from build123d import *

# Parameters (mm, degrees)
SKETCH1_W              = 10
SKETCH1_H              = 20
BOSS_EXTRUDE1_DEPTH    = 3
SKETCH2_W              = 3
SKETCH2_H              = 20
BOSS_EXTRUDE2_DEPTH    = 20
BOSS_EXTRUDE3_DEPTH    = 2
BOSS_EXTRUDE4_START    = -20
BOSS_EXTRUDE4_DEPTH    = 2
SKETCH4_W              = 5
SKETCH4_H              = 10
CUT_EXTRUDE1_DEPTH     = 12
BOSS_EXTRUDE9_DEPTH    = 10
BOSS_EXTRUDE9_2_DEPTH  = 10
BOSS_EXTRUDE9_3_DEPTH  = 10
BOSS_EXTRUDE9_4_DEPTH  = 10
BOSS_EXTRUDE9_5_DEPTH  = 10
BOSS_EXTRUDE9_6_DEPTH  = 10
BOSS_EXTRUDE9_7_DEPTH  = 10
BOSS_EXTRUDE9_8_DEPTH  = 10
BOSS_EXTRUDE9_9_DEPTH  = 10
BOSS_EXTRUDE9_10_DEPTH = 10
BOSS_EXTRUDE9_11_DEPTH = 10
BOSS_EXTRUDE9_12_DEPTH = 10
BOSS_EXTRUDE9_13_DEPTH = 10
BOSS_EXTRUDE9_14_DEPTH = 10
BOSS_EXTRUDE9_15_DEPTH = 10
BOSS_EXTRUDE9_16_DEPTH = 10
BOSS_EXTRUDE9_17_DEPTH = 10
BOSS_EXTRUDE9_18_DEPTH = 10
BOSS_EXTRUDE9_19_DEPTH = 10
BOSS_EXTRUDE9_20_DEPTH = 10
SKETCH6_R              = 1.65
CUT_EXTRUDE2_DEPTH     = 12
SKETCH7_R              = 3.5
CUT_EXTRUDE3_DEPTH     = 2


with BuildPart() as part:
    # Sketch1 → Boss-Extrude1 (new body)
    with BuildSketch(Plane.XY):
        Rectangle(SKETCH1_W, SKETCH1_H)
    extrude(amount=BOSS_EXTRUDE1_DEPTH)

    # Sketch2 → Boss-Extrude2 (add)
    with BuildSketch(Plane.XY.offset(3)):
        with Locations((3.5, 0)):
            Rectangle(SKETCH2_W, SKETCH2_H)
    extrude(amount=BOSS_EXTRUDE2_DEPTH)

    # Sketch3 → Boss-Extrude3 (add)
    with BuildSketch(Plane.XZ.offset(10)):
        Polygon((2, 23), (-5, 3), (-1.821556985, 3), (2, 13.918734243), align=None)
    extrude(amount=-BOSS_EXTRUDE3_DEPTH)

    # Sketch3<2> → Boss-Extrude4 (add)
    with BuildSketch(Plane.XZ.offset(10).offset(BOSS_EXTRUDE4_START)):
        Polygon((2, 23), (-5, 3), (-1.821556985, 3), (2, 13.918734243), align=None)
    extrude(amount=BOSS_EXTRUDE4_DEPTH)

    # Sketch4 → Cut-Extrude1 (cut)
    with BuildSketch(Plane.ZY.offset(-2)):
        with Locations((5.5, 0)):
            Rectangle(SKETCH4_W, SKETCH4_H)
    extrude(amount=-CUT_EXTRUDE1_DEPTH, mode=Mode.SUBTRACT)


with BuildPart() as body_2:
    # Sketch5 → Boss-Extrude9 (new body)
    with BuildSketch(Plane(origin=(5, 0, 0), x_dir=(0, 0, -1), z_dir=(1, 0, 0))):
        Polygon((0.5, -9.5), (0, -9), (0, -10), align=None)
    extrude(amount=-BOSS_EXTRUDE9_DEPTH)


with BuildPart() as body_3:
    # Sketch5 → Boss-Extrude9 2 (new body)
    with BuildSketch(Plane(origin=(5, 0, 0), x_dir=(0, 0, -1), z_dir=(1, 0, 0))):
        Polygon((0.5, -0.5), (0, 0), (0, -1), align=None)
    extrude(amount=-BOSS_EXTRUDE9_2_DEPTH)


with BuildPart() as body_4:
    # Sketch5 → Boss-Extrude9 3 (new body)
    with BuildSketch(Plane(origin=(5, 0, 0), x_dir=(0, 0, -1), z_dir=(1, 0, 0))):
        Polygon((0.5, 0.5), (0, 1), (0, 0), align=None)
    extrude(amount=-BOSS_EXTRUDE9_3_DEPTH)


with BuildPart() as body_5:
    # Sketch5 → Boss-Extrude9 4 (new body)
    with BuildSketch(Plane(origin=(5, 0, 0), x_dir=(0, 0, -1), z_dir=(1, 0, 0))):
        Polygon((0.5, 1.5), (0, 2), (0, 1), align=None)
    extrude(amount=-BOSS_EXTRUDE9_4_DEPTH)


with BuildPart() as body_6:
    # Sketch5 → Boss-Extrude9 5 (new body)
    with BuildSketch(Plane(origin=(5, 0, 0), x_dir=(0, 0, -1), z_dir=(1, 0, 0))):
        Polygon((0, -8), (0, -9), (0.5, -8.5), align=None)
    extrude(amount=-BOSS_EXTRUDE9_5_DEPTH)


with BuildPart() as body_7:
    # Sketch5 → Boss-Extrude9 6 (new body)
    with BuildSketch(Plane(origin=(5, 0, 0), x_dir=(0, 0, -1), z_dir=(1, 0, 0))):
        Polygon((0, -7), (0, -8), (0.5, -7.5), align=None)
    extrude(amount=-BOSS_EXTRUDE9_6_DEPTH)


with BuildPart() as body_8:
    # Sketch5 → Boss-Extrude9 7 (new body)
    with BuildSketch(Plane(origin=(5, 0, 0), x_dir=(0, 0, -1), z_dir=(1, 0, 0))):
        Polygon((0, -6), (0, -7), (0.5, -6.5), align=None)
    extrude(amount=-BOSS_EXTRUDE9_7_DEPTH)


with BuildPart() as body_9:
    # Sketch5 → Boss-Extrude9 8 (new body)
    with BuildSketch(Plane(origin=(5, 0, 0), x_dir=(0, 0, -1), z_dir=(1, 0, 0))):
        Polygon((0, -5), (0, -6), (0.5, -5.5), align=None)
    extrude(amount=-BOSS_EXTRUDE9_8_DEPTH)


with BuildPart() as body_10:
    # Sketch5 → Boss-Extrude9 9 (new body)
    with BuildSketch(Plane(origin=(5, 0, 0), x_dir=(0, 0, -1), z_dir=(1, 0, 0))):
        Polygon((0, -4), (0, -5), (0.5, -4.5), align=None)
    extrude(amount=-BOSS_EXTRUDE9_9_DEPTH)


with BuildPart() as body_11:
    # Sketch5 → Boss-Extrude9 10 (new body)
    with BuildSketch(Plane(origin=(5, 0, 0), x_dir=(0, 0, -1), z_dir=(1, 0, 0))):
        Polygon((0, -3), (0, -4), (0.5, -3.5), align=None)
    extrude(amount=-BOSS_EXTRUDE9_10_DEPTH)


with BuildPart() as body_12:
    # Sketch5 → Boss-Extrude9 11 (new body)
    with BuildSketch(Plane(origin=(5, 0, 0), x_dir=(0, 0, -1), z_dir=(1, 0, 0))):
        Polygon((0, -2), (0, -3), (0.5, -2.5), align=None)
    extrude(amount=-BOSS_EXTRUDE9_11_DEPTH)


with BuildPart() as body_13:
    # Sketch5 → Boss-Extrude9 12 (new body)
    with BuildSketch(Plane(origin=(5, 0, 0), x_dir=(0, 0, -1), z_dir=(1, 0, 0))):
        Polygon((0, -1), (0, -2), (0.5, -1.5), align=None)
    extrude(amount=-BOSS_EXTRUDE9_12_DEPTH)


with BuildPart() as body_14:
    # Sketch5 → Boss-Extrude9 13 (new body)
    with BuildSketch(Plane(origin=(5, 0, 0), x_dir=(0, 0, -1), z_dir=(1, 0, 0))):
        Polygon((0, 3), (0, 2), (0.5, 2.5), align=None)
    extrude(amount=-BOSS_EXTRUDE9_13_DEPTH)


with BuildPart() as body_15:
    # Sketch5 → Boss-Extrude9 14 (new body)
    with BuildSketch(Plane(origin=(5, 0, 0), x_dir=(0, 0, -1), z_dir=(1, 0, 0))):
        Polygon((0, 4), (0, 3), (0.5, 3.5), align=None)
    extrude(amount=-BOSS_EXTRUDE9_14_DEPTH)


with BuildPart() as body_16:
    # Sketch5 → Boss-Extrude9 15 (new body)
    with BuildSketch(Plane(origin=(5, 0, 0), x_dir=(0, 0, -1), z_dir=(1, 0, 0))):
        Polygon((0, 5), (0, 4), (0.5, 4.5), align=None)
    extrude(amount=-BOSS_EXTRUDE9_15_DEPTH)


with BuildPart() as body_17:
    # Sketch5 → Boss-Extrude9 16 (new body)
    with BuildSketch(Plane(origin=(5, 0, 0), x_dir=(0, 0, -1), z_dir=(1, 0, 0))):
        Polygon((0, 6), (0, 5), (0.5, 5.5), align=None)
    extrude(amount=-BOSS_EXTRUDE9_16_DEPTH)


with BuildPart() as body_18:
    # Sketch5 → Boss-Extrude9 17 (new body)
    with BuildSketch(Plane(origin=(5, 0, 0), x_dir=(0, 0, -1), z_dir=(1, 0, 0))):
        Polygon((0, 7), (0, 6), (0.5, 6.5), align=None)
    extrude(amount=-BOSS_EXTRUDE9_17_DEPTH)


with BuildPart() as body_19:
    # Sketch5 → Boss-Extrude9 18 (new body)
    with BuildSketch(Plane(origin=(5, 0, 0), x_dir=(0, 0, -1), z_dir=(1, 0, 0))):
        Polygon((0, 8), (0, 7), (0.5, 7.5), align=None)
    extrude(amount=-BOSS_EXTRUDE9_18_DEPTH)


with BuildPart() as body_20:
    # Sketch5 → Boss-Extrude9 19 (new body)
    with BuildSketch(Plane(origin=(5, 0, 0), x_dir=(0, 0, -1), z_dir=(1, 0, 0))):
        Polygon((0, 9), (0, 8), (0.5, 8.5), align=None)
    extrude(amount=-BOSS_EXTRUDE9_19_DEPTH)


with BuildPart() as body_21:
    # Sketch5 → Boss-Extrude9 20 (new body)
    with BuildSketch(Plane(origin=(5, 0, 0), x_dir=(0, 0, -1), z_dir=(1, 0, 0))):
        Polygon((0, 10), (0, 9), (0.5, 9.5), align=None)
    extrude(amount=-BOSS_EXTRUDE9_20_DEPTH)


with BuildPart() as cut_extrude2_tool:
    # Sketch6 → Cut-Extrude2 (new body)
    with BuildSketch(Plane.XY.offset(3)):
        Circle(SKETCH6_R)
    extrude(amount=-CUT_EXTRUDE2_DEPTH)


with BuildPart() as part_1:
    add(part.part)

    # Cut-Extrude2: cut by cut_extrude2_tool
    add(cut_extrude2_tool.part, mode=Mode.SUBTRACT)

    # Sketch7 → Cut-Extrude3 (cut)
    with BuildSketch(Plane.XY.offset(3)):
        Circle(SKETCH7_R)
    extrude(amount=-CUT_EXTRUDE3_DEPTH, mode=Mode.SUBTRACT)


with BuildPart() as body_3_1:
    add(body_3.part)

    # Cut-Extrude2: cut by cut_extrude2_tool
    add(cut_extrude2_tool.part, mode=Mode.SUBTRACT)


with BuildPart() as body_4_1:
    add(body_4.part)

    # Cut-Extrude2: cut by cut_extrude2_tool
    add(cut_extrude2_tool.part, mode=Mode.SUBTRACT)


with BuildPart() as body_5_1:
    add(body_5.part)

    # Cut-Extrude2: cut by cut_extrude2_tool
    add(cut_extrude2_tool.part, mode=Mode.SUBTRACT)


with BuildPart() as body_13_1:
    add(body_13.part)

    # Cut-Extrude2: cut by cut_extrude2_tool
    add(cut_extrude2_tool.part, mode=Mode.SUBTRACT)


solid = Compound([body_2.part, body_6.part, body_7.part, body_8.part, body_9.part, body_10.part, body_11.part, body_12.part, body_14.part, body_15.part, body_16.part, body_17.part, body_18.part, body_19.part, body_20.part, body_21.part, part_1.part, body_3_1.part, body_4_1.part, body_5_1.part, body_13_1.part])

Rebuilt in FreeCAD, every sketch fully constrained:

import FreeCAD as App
import Part
import Sketcher

V = App.Vector

doc = App.newDocument("Part")
body = doc.addObject("PartDesign::Body", "Body")

sketch1 = doc.addObject("Sketcher::SketchObject", "Sketch")
body.addObject(sketch1)
sketch1.AttachmentSupport = (doc.XY_Plane, [""])
sketch1.MapMode = "FlatFace"
sketch1.addGeometry(Part.LineSegment(V(-5, 10, 0), V(-5, -10, 0)), False)
sketch1.addGeometry(Part.LineSegment(V(-5, -10, 0), V(5, -10, 0)), False)
sketch1.addGeometry(Part.LineSegment(V(5, -10, 0), V(5, 10, 0)), False)
sketch1.addGeometry(Part.LineSegment(V(5, 10, 0), V(-5, 10, 0)), False)
sketch1.addConstraint(Sketcher.Constraint("Coincident", 0, 2, 1, 1))
sketch1.addConstraint(Sketcher.Constraint("Coincident", 1, 2, 2, 1))
sketch1.addConstraint(Sketcher.Constraint("Coincident", 2, 2, 3, 1))
sketch1.addConstraint(Sketcher.Constraint("Coincident", 3, 2, 0, 1))
sketch1.addConstraint(Sketcher.Constraint("Vertical", 0))
sketch1.addConstraint(Sketcher.Constraint("Horizontal", 1))
sketch1.addConstraint(Sketcher.Constraint("Vertical", 2))
sketch1.addConstraint(Sketcher.Constraint("Horizontal", 3))
sketch1.addConstraint(Sketcher.Constraint("Symmetric", 0, 2, 2, 2, -1, 1))
sketch1.addConstraint(Sketcher.Constraint("DistanceX", 1, 1, 1, 2, 10.0))
sketch1.addConstraint(Sketcher.Constraint("DistanceY", 0, 2, 0, 1, 20.0))
pad1 = doc.addObject("PartDesign::Pad", "Pad")
body.addObject(pad1)
pad1.Profile = sketch1
pad1.Length = 3

sketch2 = doc.addObject("Sketcher::SketchObject", "Sketch001")
body.addObject(sketch2)
sketch2.AttachmentSupport = (doc.XY_Plane, [""])
sketch2.MapMode = "FlatFace"
sketch2.AttachmentOffset = App.Placement(V(0, 0, 3), App.Rotation())
sketch2.addGeometry(Part.LineSegment(V(2, 10, 0), V(2, -10, 0)), False)
sketch2.addGeometry(Part.LineSegment(V(2, -10, 0), V(5, -10, 0)), False)
sketch2.addGeometry(Part.LineSegment(V(5, -10, 0), V(5, 10, 0)), False)
sketch2.addGeometry(Part.LineSegment(V(5, 10, 0), V(2, 10, 0)), False)
sketch2.addConstraint(Sketcher.Constraint("Coincident", 0, 2, 1, 1))
sketch2.addConstraint(Sketcher.Constraint("Coincident", 1, 2, 2, 1))
sketch2.addConstraint(Sketcher.Constraint("Coincident", 2, 2, 3, 1))
sketch2.addConstraint(Sketcher.Constraint("Coincident", 3, 2, 0, 1))
sketch2.addConstraint(Sketcher.Constraint("Vertical", 0))
sketch2.addConstraint(Sketcher.Constraint("Horizontal", 1))
sketch2.addConstraint(Sketcher.Constraint("Vertical", 2))
sketch2.addConstraint(Sketcher.Constraint("Horizontal", 3))
sketch2.addConstraint(Sketcher.Constraint("DistanceX", 1, 1, 1, 2, 3.0))
sketch2.addConstraint(Sketcher.Constraint("DistanceY", 0, 2, 0, 1, 20.0))
sketch2.addConstraint(Sketcher.Constraint("DistanceX", -1, 1, 0, 2, 2.0))
sketch2.addConstraint(Sketcher.Constraint("DistanceY", 0, 2, -1, 1, 10.0))
pad2 = doc.addObject("PartDesign::Pad", "Pad001")
body.addObject(pad2)
pad2.Profile = sketch2
pad2.Length = 20

sketch3 = doc.addObject("Sketcher::SketchObject", "Sketch002")
body.addObject(sketch3)
sketch3.AttachmentSupport = (doc.XZ_Plane, [""])
sketch3.MapMode = "FlatFace"
sketch3.AttachmentOffset = App.Placement(V(0, 0, 10), App.Rotation())
sketch3.addGeometry(Part.LineSegment(V(2, 23, 0), V(-5, 3, 0)), False)
sketch3.addGeometry(Part.LineSegment(V(-5, 3, 0), V(-1.8, 3, 0)), False)
sketch3.addGeometry(Part.LineSegment(V(-1.8, 3, 0), V(2, 13.9, 0)), False)
sketch3.addGeometry(Part.LineSegment(V(2, 13.9, 0), V(2, 23, 0)), False)
sketch3.addConstraint(Sketcher.Constraint("Coincident", 0, 2, 1, 1))
sketch3.addConstraint(Sketcher.Constraint("Coincident", 1, 2, 2, 1))
sketch3.addConstraint(Sketcher.Constraint("Coincident", 2, 2, 3, 1))
sketch3.addConstraint(Sketcher.Constraint("Coincident", 3, 2, 0, 1))
sketch3.addConstraint(Sketcher.Constraint("Horizontal", 1))
sketch3.addConstraint(Sketcher.Constraint("Vertical", 3))
sketch3.addConstraint(Sketcher.Constraint("Parallel", 0, 2))
sketch3.addConstraint(Sketcher.Constraint("DistanceX", 0, 2, -1, 1, 5.0))
sketch3.addConstraint(Sketcher.Constraint("DistanceY", -1, 1, 0, 2, 3.0))
sketch3.addConstraint(Sketcher.Constraint("DistanceX", -1, 1, 2, 2, 2.0))
sketch3.addConstraint(Sketcher.Constraint("DistanceY", -1, 1, 3, 2, 23.0))
sketch3.addConstraint(Sketcher.Constraint("Distance", 2, 11.568192))
pad3 = doc.addObject("PartDesign::Pad", "Pad002")
body.addObject(pad3)
pad3.Profile = sketch3
pad3.Length = 2
pad3.Reversed = True

sketch4 = doc.addObject("Sketcher::SketchObject", "Sketch003")
body.addObject(sketch4)
sketch4.AttachmentSupport = (doc.XZ_Plane, [""])
sketch4.MapMode = "FlatFace"
sketch4.AttachmentOffset = App.Placement(V(0, 0, -10), App.Rotation())
sketch4.addGeometry(Part.LineSegment(V(2, 23, 0), V(-5, 3, 0)), False)
sketch4.addGeometry(Part.LineSegment(V(-5, 3, 0), V(-1.8, 3, 0)), False)
sketch4.addGeometry(Part.LineSegment(V(-1.8, 3, 0), V(2, 13.9, 0)), False)
sketch4.addGeometry(Part.LineSegment(V(2, 13.9, 0), V(2, 23, 0)), False)
sketch4.addConstraint(Sketcher.Constraint("Coincident", 0, 2, 1, 1))
sketch4.addConstraint(Sketcher.Constraint("Coincident", 1, 2, 2, 1))
sketch4.addConstraint(Sketcher.Constraint("Coincident", 2, 2, 3, 1))
sketch4.addConstraint(Sketcher.Constraint("Coincident", 3, 2, 0, 1))
sketch4.addConstraint(Sketcher.Constraint("Horizontal", 1))
sketch4.addConstraint(Sketcher.Constraint("Vertical", 3))
sketch4.addConstraint(Sketcher.Constraint("Parallel", 0, 2))
sketch4.addConstraint(Sketcher.Constraint("DistanceX", 0, 2, -1, 1, 5.0))
sketch4.addConstraint(Sketcher.Constraint("DistanceY", -1, 1, 0, 2, 3.0))
sketch4.addConstraint(Sketcher.Constraint("DistanceX", -1, 1, 2, 2, 2.0))
sketch4.addConstraint(Sketcher.Constraint("DistanceY", -1, 1, 3, 2, 23.0))
sketch4.addConstraint(Sketcher.Constraint("Distance", 2, 11.568192))
pad4 = doc.addObject("PartDesign::Pad", "Pad003")
body.addObject(pad4)
pad4.Profile = sketch4
pad4.Length = 2

sketch5 = doc.addObject("Sketcher::SketchObject", "Sketch004")
body.addObject(sketch5)
sketch5.AttachmentSupport = (doc.YZ_Plane, [""])
sketch5.MapMode = "FlatFace"
sketch5.AttachmentOffset = App.Placement(V(0, 0, 2), App.Rotation())
sketch5.addGeometry(Part.LineSegment(V(5, 3, 0), V(-5, 3, 0)), False)
sketch5.addGeometry(Part.LineSegment(V(-5, 3, 0), V(-5, 8, 0)), False)
sketch5.addGeometry(Part.LineSegment(V(-5, 8, 0), V(5, 8, 0)), False)
sketch5.addGeometry(Part.LineSegment(V(5, 8, 0), V(5, 3, 0)), False)
sketch5.addConstraint(Sketcher.Constraint("Coincident", 0, 2, 1, 1))
sketch5.addConstraint(Sketcher.Constraint("Coincident", 1, 2, 2, 1))
sketch5.addConstraint(Sketcher.Constraint("Coincident", 2, 2, 3, 1))
sketch5.addConstraint(Sketcher.Constraint("Coincident", 3, 2, 0, 1))
sketch5.addConstraint(Sketcher.Constraint("Horizontal", 0))
sketch5.addConstraint(Sketcher.Constraint("Vertical", 1))
sketch5.addConstraint(Sketcher.Constraint("Horizontal", 2))
sketch5.addConstraint(Sketcher.Constraint("Vertical", 3))
sketch5.addConstraint(Sketcher.Constraint("DistanceX", 0, 2, 0, 1, 10.0))
sketch5.addConstraint(Sketcher.Constraint("DistanceY", 1, 1, 1, 2, 5.0))
sketch5.addConstraint(Sketcher.Constraint("DistanceX", 0, 2, -1, 1, 5.0))
sketch5.addConstraint(Sketcher.Constraint("DistanceY", -1, 1, 0, 2, 3.0))
pocket1 = doc.addObject("PartDesign::Pocket", "Pocket")
body.addObject(pocket1)
pocket1.Profile = sketch5
pocket1.Length = 12
pocket1.Reversed = True
body2 = doc.addObject("PartDesign::Body", "Body001")

sketch6 = doc.addObject("Sketcher::SketchObject", "Sketch005")
body2.addObject(sketch6)
sketch6.AttachmentSupport = (doc.getObject("YZ_Plane001"), [""])
sketch6.MapMode = "FlatFace"
sketch6.AttachmentOffset = App.Placement(V(0, 0, 5), App.Rotation())
sketch6.addGeometry(Part.LineSegment(V(-9.5, -0.5, 0), V(-9, 0, 0)), False)
sketch6.addGeometry(Part.LineSegment(V(-9, 0, 0), V(-10, 0, 0)), False)
sketch6.addGeometry(Part.LineSegment(V(-10, 0, 0), V(-9.5, -0.5, 0)), False)
sketch6.addConstraint(Sketcher.Constraint("Coincident", 0, 2, 1, 1))
sketch6.addConstraint(Sketcher.Constraint("Coincident", 1, 2, 2, 1))
sketch6.addConstraint(Sketcher.Constraint("Coincident", 2, 2, 0, 1))
sketch6.addConstraint(Sketcher.Constraint("Horizontal", 1))
sketch6.addConstraint(Sketcher.Constraint("PointOnObject", 0, 2, -1))
sketch6.addConstraint(Sketcher.Constraint("Perpendicular", 0, 2))
sketch6.addConstraint(Sketcher.Constraint("Equal", 0, 2))
sketch6.addConstraint(Sketcher.Constraint("DistanceX", 1, 2, 1, 1, 1.0))
sketch6.addConstraint(Sketcher.Constraint("DistanceX", 0, 2, -1, 1, 9.0))
pad5 = doc.addObject("PartDesign::Pad", "Pad004")
body2.addObject(pad5)
pad5.Profile = sketch6
pad5.Length = 10
pad5.Reversed = True
body3 = doc.addObject("PartDesign::Body", "Body002")

sketch7 = doc.addObject("Sketcher::SketchObject", "Sketch006")
body3.addObject(sketch7)
sketch7.AttachmentSupport = (doc.getObject("YZ_Plane002"), [""])
sketch7.MapMode = "FlatFace"
sketch7.AttachmentOffset = App.Placement(V(0, 0, 5), App.Rotation())
sketch7.addGeometry(Part.LineSegment(V(-0.5, -0.5, 0), V(0, 0, 0)), False)
sketch7.addGeometry(Part.LineSegment(V(0, 0, 0), V(-1, 0, 0)), False)
sketch7.addGeometry(Part.LineSegment(V(-1, 0, 0), V(-0.5, -0.5, 0)), False)
sketch7.addConstraint(Sketcher.Constraint("Coincident", 0, 2, 1, 1))
sketch7.addConstraint(Sketcher.Constraint("Coincident", 1, 2, 2, 1))
sketch7.addConstraint(Sketcher.Constraint("Coincident", 2, 2, 0, 1))
sketch7.addConstraint(Sketcher.Constraint("Horizontal", 1))
sketch7.addConstraint(Sketcher.Constraint("Coincident", 0, 2, -1, 1))
sketch7.addConstraint(Sketcher.Constraint("Perpendicular", 0, 2))
sketch7.addConstraint(Sketcher.Constraint("Equal", 0, 2))
sketch7.addConstraint(Sketcher.Constraint("DistanceX", 1, 2, 1, 1, 1.0))
pad6 = doc.addObject("PartDesign::Pad", "Pad005")
body3.addObject(pad6)
pad6.Profile = sketch7
pad6.Length = 10
pad6.Reversed = True
body4 = doc.addObject("PartDesign::Body", "Body003")

sketch8 = doc.addObject("Sketcher::SketchObject", "Sketch007")
body4.addObject(sketch8)
sketch8.AttachmentSupport = (doc.getObject("YZ_Plane003"), [""])
sketch8.MapMode = "FlatFace"
sketch8.AttachmentOffset = App.Placement(V(0, 0, 5), App.Rotation())
sketch8.addGeometry(Part.LineSegment(V(0.5, -0.5, 0), V(1, 0, 0)), False)
sketch8.addGeometry(Part.LineSegment(V(1, 0, 0), V(0, 0, 0)), False)
sketch8.addGeometry(Part.LineSegment(V(0, 0, 0), V(0.5, -0.5, 0)), False)
sketch8.addConstraint(Sketcher.Constraint("Coincident", 0, 2, 1, 1))
sketch8.addConstraint(Sketcher.Constraint("Coincident", 1, 2, 2, 1))
sketch8.addConstraint(Sketcher.Constraint("Coincident", 2, 2, 0, 1))
sketch8.addConstraint(Sketcher.Constraint("Horizontal", 1))
sketch8.addConstraint(Sketcher.Constraint("Coincident", 1, 2, -1, 1))
sketch8.addConstraint(Sketcher.Constraint("Perpendicular", 0, 2))
sketch8.addConstraint(Sketcher.Constraint("Equal", 0, 2))
sketch8.addConstraint(Sketcher.Constraint("DistanceX", 1, 2, 1, 1, 1.0))
pad7 = doc.addObject("PartDesign::Pad", "Pad006")
body4.addObject(pad7)
pad7.Profile = sketch8
pad7.Length = 10
pad7.Reversed = True
body5 = doc.addObject("PartDesign::Body", "Body004")

sketch9 = doc.addObject("Sketcher::SketchObject", "Sketch008")
body5.addObject(sketch9)
sketch9.AttachmentSupport = (doc.getObject("YZ_Plane004"), [""])
sketch9.MapMode = "FlatFace"
sketch9.AttachmentOffset = App.Placement(V(0, 0, 5), App.Rotation())
sketch9.addGeometry(Part.LineSegment(V(1.5, -0.5, 0), V(2, 0, 0)), False)
sketch9.addGeometry(Part.LineSegment(V(2, 0, 0), V(1, 0, 0)), False)
sketch9.addGeometry(Part.LineSegment(V(1, 0, 0), V(1.5, -0.5, 0)), False)
sketch9.addConstraint(Sketcher.Constraint("Coincident", 0, 2, 1, 1))
sketch9.addConstraint(Sketcher.Constraint("Coincident", 1, 2, 2, 1))
sketch9.addConstraint(Sketcher.Constraint("Coincident", 2, 2, 0, 1))
sketch9.addConstraint(Sketcher.Constraint("Horizontal", 1))
sketch9.addConstraint(Sketcher.Constraint("PointOnObject", 0, 2, -1))
sketch9.addConstraint(Sketcher.Constraint("Perpendicular", 0, 2))
sketch9.addConstraint(Sketcher.Constraint("Equal", 0, 2))
sketch9.addConstraint(Sketcher.Constraint("DistanceX", 1, 2, 1, 1, 1.0))
sketch9.addConstraint(Sketcher.Constraint("DistanceX", -1, 1, 0, 2, 2.0))
pad8 = doc.addObject("PartDesign::Pad", "Pad007")
body5.addObject(pad8)
pad8.Profile = sketch9
pad8.Length = 10
pad8.Reversed = True
body6 = doc.addObject("PartDesign::Body", "Body005")

sketch10 = doc.addObject("Sketcher::SketchObject", "Sketch009")
body6.addObject(sketch10)
sketch10.AttachmentSupport = (doc.getObject("YZ_Plane005"), [""])
sketch10.MapMode = "FlatFace"
sketch10.AttachmentOffset = App.Placement(V(0, 0, 5), App.Rotation())
sketch10.addGeometry(Part.LineSegment(V(-8, 0, 0), V(-9, 0, 0)), False)
sketch10.addGeometry(Part.LineSegment(V(-9, 0, 0), V(-8.5, -0.5, 0)), False)
sketch10.addGeometry(Part.LineSegment(V(-8.5, -0.5, 0), V(-8, 0, 0)), False)
sketch10.addConstraint(Sketcher.Constraint("Coincident", 0, 2, 1, 1))
sketch10.addConstraint(Sketcher.Constraint("Coincident", 1, 2, 2, 1))
sketch10.addConstraint(Sketcher.Constraint("Coincident", 2, 2, 0, 1))
sketch10.addConstraint(Sketcher.Constraint("Horizontal", 0))
sketch10.addConstraint(Sketcher.Constraint("PointOnObject", 0, 2, -1))
sketch10.addConstraint(Sketcher.Constraint("Perpendicular", 1, 2))
sketch10.addConstraint(Sketcher.Constraint("Equal", 1, 2))
sketch10.addConstraint(Sketcher.Constraint("DistanceX", 0, 2, 0, 1, 1.0))
sketch10.addConstraint(Sketcher.Constraint("DistanceX", 0, 2, -1, 1, 9.0))
pad9 = doc.addObject("PartDesign::Pad", "Pad008")
body6.addObject(pad9)
pad9.Profile = sketch10
pad9.Length = 10
pad9.Reversed = True
body7 = doc.addObject("PartDesign::Body", "Body006")

sketch11 = doc.addObject("Sketcher::SketchObject", "Sketch010")
body7.addObject(sketch11)
sketch11.AttachmentSupport = (doc.getObject("YZ_Plane006"), [""])
sketch11.MapMode = "FlatFace"
sketch11.AttachmentOffset = App.Placement(V(0, 0, 5), App.Rotation())
sketch11.addGeometry(Part.LineSegment(V(-7, 0, 0), V(-8, 0, 0)), False)
sketch11.addGeometry(Part.LineSegment(V(-8, 0, 0), V(-7.5, -0.5, 0)), False)
sketch11.addGeometry(Part.LineSegment(V(-7.5, -0.5, 0), V(-7, 0, 0)), False)
sketch11.addConstraint(Sketcher.Constraint("Coincident", 0, 2, 1, 1))
sketch11.addConstraint(Sketcher.Constraint("Coincident", 1, 2, 2, 1))
sketch11.addConstraint(Sketcher.Constraint("Coincident", 2, 2, 0, 1))
sketch11.addConstraint(Sketcher.Constraint("Horizontal", 0))
sketch11.addConstraint(Sketcher.Constraint("PointOnObject", 0, 2, -1))
sketch11.addConstraint(Sketcher.Constraint("Perpendicular", 1, 2))
sketch11.addConstraint(Sketcher.Constraint("Equal", 1, 2))
sketch11.addConstraint(Sketcher.Constraint("DistanceX", 0, 2, 0, 1, 1.0))
sketch11.addConstraint(Sketcher.Constraint("DistanceX", 0, 2, -1, 1, 8.0))
pad10 = doc.addObject("PartDesign::Pad", "Pad009")
body7.addObject(pad10)
pad10.Profile = sketch11
pad10.Length = 10
pad10.Reversed = True
body8 = doc.addObject("PartDesign::Body", "Body007")

sketch12 = doc.addObject("Sketcher::SketchObject", "Sketch011")
body8.addObject(sketch12)
sketch12.AttachmentSupport = (doc.getObject("YZ_Plane007"), [""])
sketch12.MapMode = "FlatFace"
sketch12.AttachmentOffset = App.Placement(V(0, 0, 5), App.Rotation())
sketch12.addGeometry(Part.LineSegment(V(-6, 0, 0), V(-7, 0, 0)), False)
sketch12.addGeometry(Part.LineSegment(V(-7, 0, 0), V(-6.5, -0.5, 0)), False)
sketch12.addGeometry(Part.LineSegment(V(-6.5, -0.5, 0), V(-6, 0, 0)), False)
sketch12.addConstraint(Sketcher.Constraint("Coincident", 0, 2, 1, 1))
sketch12.addConstraint(Sketcher.Constraint("Coincident", 1, 2, 2, 1))
sketch12.addConstraint(Sketcher.Constraint("Coincident", 2, 2, 0, 1))
sketch12.addConstraint(Sketcher.Constraint("Horizontal", 0))
sketch12.addConstraint(Sketcher.Constraint("PointOnObject", 0, 2, -1))
sketch12.addConstraint(Sketcher.Constraint("Perpendicular", 1, 2))
sketch12.addConstraint(Sketcher.Constraint("Equal", 1, 2))
sketch12.addConstraint(Sketcher.Constraint("DistanceX", 0, 2, 0, 1, 1.0))
sketch12.addConstraint(Sketcher.Constraint("DistanceX", 0, 2, -1, 1, 7.0))
pad11 = doc.addObject("PartDesign::Pad", "Pad010")
body8.addObject(pad11)
pad11.Profile = sketch12
pad11.Length = 10
pad11.Reversed = True
body9 = doc.addObject("PartDesign::Body", "Body008")

sketch13 = doc.addObject("Sketcher::SketchObject", "Sketch012")
body9.addObject(sketch13)
sketch13.AttachmentSupport = (doc.getObject("YZ_Plane008"), [""])
sketch13.MapMode = "FlatFace"
sketch13.AttachmentOffset = App.Placement(V(0, 0, 5), App.Rotation())
sketch13.addGeometry(Part.LineSegment(V(-5, 0, 0), V(-6, 0, 0)), False)
sketch13.addGeometry(Part.LineSegment(V(-6, 0, 0), V(-5.5, -0.5, 0)), False)
sketch13.addGeometry(Part.LineSegment(V(-5.5, -0.5, 0), V(-5, 0, 0)), False)
sketch13.addConstraint(Sketcher.Constraint("Coincident", 0, 2, 1, 1))
sketch13.addConstraint(Sketcher.Constraint("Coincident", 1, 2, 2, 1))
sketch13.addConstraint(Sketcher.Constraint("Coincident", 2, 2, 0, 1))
sketch13.addConstraint(Sketcher.Constraint("Horizontal", 0))
sketch13.addConstraint(Sketcher.Constraint("PointOnObject", 0, 2, -1))
sketch13.addConstraint(Sketcher.Constraint("Perpendicular", 1, 2))
sketch13.addConstraint(Sketcher.Constraint("Equal", 1, 2))
sketch13.addConstraint(Sketcher.Constraint("DistanceX", 0, 2, 0, 1, 1.0))
sketch13.addConstraint(Sketcher.Constraint("DistanceX", 0, 2, -1, 1, 6.0))
pad12 = doc.addObject("PartDesign::Pad", "Pad011")
body9.addObject(pad12)
pad12.Profile = sketch13
pad12.Length = 10
pad12.Reversed = True
body10 = doc.addObject("PartDesign::Body", "Body009")

sketch14 = doc.addObject("Sketcher::SketchObject", "Sketch013")
body10.addObject(sketch14)
sketch14.AttachmentSupport = (doc.getObject("YZ_Plane009"), [""])
sketch14.MapMode = "FlatFace"
sketch14.AttachmentOffset = App.Placement(V(0, 0, 5), App.Rotation())
sketch14.addGeometry(Part.LineSegment(V(-4, 0, 0), V(-5, 0, 0)), False)
sketch14.addGeometry(Part.LineSegment(V(-5, 0, 0), V(-4.5, -0.5, 0)), False)
sketch14.addGeometry(Part.LineSegment(V(-4.5, -0.5, 0), V(-4, 0, 0)), False)
sketch14.addConstraint(Sketcher.Constraint("Coincident", 0, 2, 1, 1))
sketch14.addConstraint(Sketcher.Constraint("Coincident", 1, 2, 2, 1))
sketch14.addConstraint(Sketcher.Constraint("Coincident", 2, 2, 0, 1))
sketch14.addConstraint(Sketcher.Constraint("Horizontal", 0))
sketch14.addConstraint(Sketcher.Constraint("PointOnObject", 0, 2, -1))
sketch14.addConstraint(Sketcher.Constraint("Perpendicular", 1, 2))
sketch14.addConstraint(Sketcher.Constraint("Equal", 1, 2))
sketch14.addConstraint(Sketcher.Constraint("DistanceX", 0, 2, 0, 1, 1.0))
sketch14.addConstraint(Sketcher.Constraint("DistanceX", 0, 2, -1, 1, 5.0))
pad13 = doc.addObject("PartDesign::Pad", "Pad012")
body10.addObject(pad13)
pad13.Profile = sketch14
pad13.Length = 10
pad13.Reversed = True
body11 = doc.addObject("PartDesign::Body", "Body010")

sketch15 = doc.addObject("Sketcher::SketchObject", "Sketch014")
body11.addObject(sketch15)
sketch15.AttachmentSupport = (doc.getObject("YZ_Plane010"), [""])
sketch15.MapMode = "FlatFace"
sketch15.AttachmentOffset = App.Placement(V(0, 0, 5), App.Rotation())
sketch15.addGeometry(Part.LineSegment(V(-3, 0, 0), V(-4, 0, 0)), False)
sketch15.addGeometry(Part.LineSegment(V(-4, 0, 0), V(-3.5, -0.5, 0)), False)
sketch15.addGeometry(Part.LineSegment(V(-3.5, -0.5, 0), V(-3, 0, 0)), False)
sketch15.addConstraint(Sketcher.Constraint("Coincident", 0, 2, 1, 1))
sketch15.addConstraint(Sketcher.Constraint("Coincident", 1, 2, 2, 1))
sketch15.addConstraint(Sketcher.Constraint("Coincident", 2, 2, 0, 1))
sketch15.addConstraint(Sketcher.Constraint("Horizontal", 0))
sketch15.addConstraint(Sketcher.Constraint("PointOnObject", 0, 2, -1))
sketch15.addConstraint(Sketcher.Constraint("Perpendicular", 1, 2))
sketch15.addConstraint(Sketcher.Constraint("Equal", 1, 2))
sketch15.addConstraint(Sketcher.Constraint("DistanceX", 0, 2, 0, 1, 1.0))
sketch15.addConstraint(Sketcher.Constraint("DistanceX", 0, 2, -1, 1, 4.0))
pad14 = doc.addObject("PartDesign::Pad", "Pad013")
body11.addObject(pad14)
pad14.Profile = sketch15
pad14.Length = 10
pad14.Reversed = True
body12 = doc.addObject("PartDesign::Body", "Body011")

sketch16 = doc.addObject("Sketcher::SketchObject", "Sketch015")
body12.addObject(sketch16)
sketch16.AttachmentSupport = (doc.getObject("YZ_Plane011"), [""])
sketch16.MapMode = "FlatFace"
sketch16.AttachmentOffset = App.Placement(V(0, 0, 5), App.Rotation())
sketch16.addGeometry(Part.LineSegment(V(-2, 0, 0), V(-3, 0, 0)), False)
sketch16.addGeometry(Part.LineSegment(V(-3, 0, 0), V(-2.5, -0.5, 0)), False)
sketch16.addGeometry(Part.LineSegment(V(-2.5, -0.5, 0), V(-2, 0, 0)), False)
sketch16.addConstraint(Sketcher.Constraint("Coincident", 0, 2, 1, 1))
sketch16.addConstraint(Sketcher.Constraint("Coincident", 1, 2, 2, 1))
sketch16.addConstraint(Sketcher.Constraint("Coincident", 2, 2, 0, 1))
sketch16.addConstraint(Sketcher.Constraint("Horizontal", 0))
sketch16.addConstraint(Sketcher.Constraint("PointOnObject", 0, 2, -1))
sketch16.addConstraint(Sketcher.Constraint("Perpendicular", 1, 2))
sketch16.addConstraint(Sketcher.Constraint("Equal", 1, 2))
sketch16.addConstraint(Sketcher.Constraint("DistanceX", 0, 2, 0, 1, 1.0))
sketch16.addConstraint(Sketcher.Constraint("DistanceX", 0, 2, -1, 1, 3.0))
pad15 = doc.addObject("PartDesign::Pad", "Pad014")
body12.addObject(pad15)
pad15.Profile = sketch16
pad15.Length = 10
pad15.Reversed = True
body13 = doc.addObject("PartDesign::Body", "Body012")

sketch17 = doc.addObject("Sketcher::SketchObject", "Sketch016")
body13.addObject(sketch17)
sketch17.AttachmentSupport = (doc.getObject("YZ_Plane012"), [""])
sketch17.MapMode = "FlatFace"
sketch17.AttachmentOffset = App.Placement(V(0, 0, 5), App.Rotation())
sketch17.addGeometry(Part.LineSegment(V(-1, 0, 0), V(-2, 0, 0)), False)
sketch17.addGeometry(Part.LineSegment(V(-2, 0, 0), V(-1.5, -0.5, 0)), False)
sketch17.addGeometry(Part.LineSegment(V(-1.5, -0.5, 0), V(-1, 0, 0)), False)
sketch17.addConstraint(Sketcher.Constraint("Coincident", 0, 2, 1, 1))
sketch17.addConstraint(Sketcher.Constraint("Coincident", 1, 2, 2, 1))
sketch17.addConstraint(Sketcher.Constraint("Coincident", 2, 2, 0, 1))
sketch17.addConstraint(Sketcher.Constraint("Horizontal", 0))
sketch17.addConstraint(Sketcher.Constraint("PointOnObject", 0, 2, -1))
sketch17.addConstraint(Sketcher.Constraint("Perpendicular", 1, 2))
sketch17.addConstraint(Sketcher.Constraint("Equal", 1, 2))
sketch17.addConstraint(Sketcher.Constraint("DistanceX", 0, 2, 0, 1, 1.0))
sketch17.addConstraint(Sketcher.Constraint("DistanceX", 0, 2, -1, 1, 2.0))
pad16 = doc.addObject("PartDesign::Pad", "Pad015")
body13.addObject(pad16)
pad16.Profile = sketch17
pad16.Length = 10
pad16.Reversed = True
body14 = doc.addObject("PartDesign::Body", "Body013")

sketch18 = doc.addObject("Sketcher::SketchObject", "Sketch017")
body14.addObject(sketch18)
sketch18.AttachmentSupport = (doc.getObject("YZ_Plane013"), [""])
sketch18.MapMode = "FlatFace"
sketch18.AttachmentOffset = App.Placement(V(0, 0, 5), App.Rotation())
sketch18.addGeometry(Part.LineSegment(V(3, 0, 0), V(2, 0, 0)), False)
sketch18.addGeometry(Part.LineSegment(V(2, 0, 0), V(2.5, -0.5, 0)), False)
sketch18.addGeometry(Part.LineSegment(V(2.5, -0.5, 0), V(3, 0, 0)), False)
sketch18.addConstraint(Sketcher.Constraint("Coincident", 0, 2, 1, 1))
sketch18.addConstraint(Sketcher.Constraint("Coincident", 1, 2, 2, 1))
sketch18.addConstraint(Sketcher.Constraint("Coincident", 2, 2, 0, 1))
sketch18.addConstraint(Sketcher.Constraint("Horizontal", 0))
sketch18.addConstraint(Sketcher.Constraint("PointOnObject", 0, 2, -1))
sketch18.addConstraint(Sketcher.Constraint("Perpendicular", 1, 2))
sketch18.addConstraint(Sketcher.Constraint("Equal", 1, 2))
sketch18.addConstraint(Sketcher.Constraint("DistanceX", 0, 2, 0, 1, 1.0))
sketch18.addConstraint(Sketcher.Constraint("DistanceX", -1, 1, 0, 2, 2.0))
pad17 = doc.addObject("PartDesign::Pad", "Pad016")
body14.addObject(pad17)
pad17.Profile = sketch18
pad17.Length = 10
pad17.Reversed = True
body15 = doc.addObject("PartDesign::Body", "Body014")

sketch19 = doc.addObject("Sketcher::SketchObject", "Sketch018")
body15.addObject(sketch19)
sketch19.AttachmentSupport = (doc.getObject("YZ_Plane014"), [""])
sketch19.MapMode = "FlatFace"
sketch19.AttachmentOffset = App.Placement(V(0, 0, 5), App.Rotation())
sketch19.addGeometry(Part.LineSegment(V(4, 0, 0), V(3, 0, 0)), False)
sketch19.addGeometry(Part.LineSegment(V(3, 0, 0), V(3.5, -0.5, 0)), False)
sketch19.addGeometry(Part.LineSegment(V(3.5, -0.5, 0), V(4, 0, 0)), False)
sketch19.addConstraint(Sketcher.Constraint("Coincident", 0, 2, 1, 1))
sketch19.addConstraint(Sketcher.Constraint("Coincident", 1, 2, 2, 1))
sketch19.addConstraint(Sketcher.Constraint("Coincident", 2, 2, 0, 1))
sketch19.addConstraint(Sketcher.Constraint("Horizontal", 0))
sketch19.addConstraint(Sketcher.Constraint("PointOnObject", 0, 2, -1))
sketch19.addConstraint(Sketcher.Constraint("Perpendicular", 1, 2))
sketch19.addConstraint(Sketcher.Constraint("Equal", 1, 2))
sketch19.addConstraint(Sketcher.Constraint("DistanceX", 0, 2, 0, 1, 1.0))
sketch19.addConstraint(Sketcher.Constraint("DistanceX", -1, 1, 0, 2, 3.0))
pad18 = doc.addObject("PartDesign::Pad", "Pad017")
body15.addObject(pad18)
pad18.Profile = sketch19
pad18.Length = 10
pad18.Reversed = True
body16 = doc.addObject("PartDesign::Body", "Body015")

sketch20 = doc.addObject("Sketcher::SketchObject", "Sketch019")
body16.addObject(sketch20)
sketch20.AttachmentSupport = (doc.getObject("YZ_Plane015"), [""])
sketch20.MapMode = "FlatFace"
sketch20.AttachmentOffset = App.Placement(V(0, 0, 5), App.Rotation())
sketch20.addGeometry(Part.LineSegment(V(5, 0, 0), V(4, 0, 0)), False)
sketch20.addGeometry(Part.LineSegment(V(4, 0, 0), V(4.5, -0.5, 0)), False)
sketch20.addGeometry(Part.LineSegment(V(4.5, -0.5, 0), V(5, 0, 0)), False)
sketch20.addConstraint(Sketcher.Constraint("Coincident", 0, 2, 1, 1))
sketch20.addConstraint(Sketcher.Constraint("Coincident", 1, 2, 2, 1))
sketch20.addConstraint(Sketcher.Constraint("Coincident", 2, 2, 0, 1))
sketch20.addConstraint(Sketcher.Constraint("Horizontal", 0))
sketch20.addConstraint(Sketcher.Constraint("PointOnObject", 0, 2, -1))
sketch20.addConstraint(Sketcher.Constraint("Perpendicular", 1, 2))
sketch20.addConstraint(Sketcher.Constraint("Equal", 1, 2))
sketch20.addConstraint(Sketcher.Constraint("DistanceX", 0, 2, 0, 1, 1.0))
sketch20.addConstraint(Sketcher.Constraint("DistanceX", -1, 1, 0, 2, 4.0))
pad19 = doc.addObject("PartDesign::Pad", "Pad018")
body16.addObject(pad19)
pad19.Profile = sketch20
pad19.Length = 10
pad19.Reversed = True
body17 = doc.addObject("PartDesign::Body", "Body016")

sketch21 = doc.addObject("Sketcher::SketchObject", "Sketch020")
body17.addObject(sketch21)
sketch21.AttachmentSupport = (doc.getObject("YZ_Plane016"), [""])
sketch21.MapMode = "FlatFace"
sketch21.AttachmentOffset = App.Placement(V(0, 0, 5), App.Rotation())
sketch21.addGeometry(Part.LineSegment(V(6, 0, 0), V(5, 0, 0)), False)
sketch21.addGeometry(Part.LineSegment(V(5, 0, 0), V(5.5, -0.5, 0)), False)
sketch21.addGeometry(Part.LineSegment(V(5.5, -0.5, 0), V(6, 0, 0)), False)
sketch21.addConstraint(Sketcher.Constraint("Coincident", 0, 2, 1, 1))
sketch21.addConstraint(Sketcher.Constraint("Coincident", 1, 2, 2, 1))
sketch21.addConstraint(Sketcher.Constraint("Coincident", 2, 2, 0, 1))
sketch21.addConstraint(Sketcher.Constraint("Horizontal", 0))
sketch21.addConstraint(Sketcher.Constraint("PointOnObject", 0, 2, -1))
sketch21.addConstraint(Sketcher.Constraint("Perpendicular", 1, 2))
sketch21.addConstraint(Sketcher.Constraint("Equal", 1, 2))
sketch21.addConstraint(Sketcher.Constraint("DistanceX", 0, 2, 0, 1, 1.0))
sketch21.addConstraint(Sketcher.Constraint("DistanceX", -1, 1, 0, 2, 5.0))
pad20 = doc.addObject("PartDesign::Pad", "Pad019")
body17.addObject(pad20)
pad20.Profile = sketch21
pad20.Length = 10
pad20.Reversed = True
body18 = doc.addObject("PartDesign::Body", "Body017")

sketch22 = doc.addObject("Sketcher::SketchObject", "Sketch021")
body18.addObject(sketch22)
sketch22.AttachmentSupport = (doc.getObject("YZ_Plane017"), [""])
sketch22.MapMode = "FlatFace"
sketch22.AttachmentOffset = App.Placement(V(0, 0, 5), App.Rotation())
sketch22.addGeometry(Part.LineSegment(V(7, 0, 0), V(6, 0, 0)), False)
sketch22.addGeometry(Part.LineSegment(V(6, 0, 0), V(6.5, -0.5, 0)), False)
sketch22.addGeometry(Part.LineSegment(V(6.5, -0.5, 0), V(7, 0, 0)), False)
sketch22.addConstraint(Sketcher.Constraint("Coincident", 0, 2, 1, 1))
sketch22.addConstraint(Sketcher.Constraint("Coincident", 1, 2, 2, 1))
sketch22.addConstraint(Sketcher.Constraint("Coincident", 2, 2, 0, 1))
sketch22.addConstraint(Sketcher.Constraint("Horizontal", 0))
sketch22.addConstraint(Sketcher.Constraint("PointOnObject", 0, 2, -1))
sketch22.addConstraint(Sketcher.Constraint("Perpendicular", 1, 2))
sketch22.addConstraint(Sketcher.Constraint("Equal", 1, 2))
sketch22.addConstraint(Sketcher.Constraint("DistanceX", 0, 2, 0, 1, 1.0))
sketch22.addConstraint(Sketcher.Constraint("DistanceX", -1, 1, 0, 2, 6.0))
pad21 = doc.addObject("PartDesign::Pad", "Pad020")
body18.addObject(pad21)
pad21.Profile = sketch22
pad21.Length = 10
pad21.Reversed = True
body19 = doc.addObject("PartDesign::Body", "Body018")

sketch23 = doc.addObject("Sketcher::SketchObject", "Sketch022")
body19.addObject(sketch23)
sketch23.AttachmentSupport = (doc.getObject("YZ_Plane018"), [""])
sketch23.MapMode = "FlatFace"
sketch23.AttachmentOffset = App.Placement(V(0, 0, 5), App.Rotation())
sketch23.addGeometry(Part.LineSegment(V(8, 0, 0), V(7, 0, 0)), False)
sketch23.addGeometry(Part.LineSegment(V(7, 0, 0), V(7.5, -0.5, 0)), False)
sketch23.addGeometry(Part.LineSegment(V(7.5, -0.5, 0), V(8, 0, 0)), False)
sketch23.addConstraint(Sketcher.Constraint("Coincident", 0, 2, 1, 1))
sketch23.addConstraint(Sketcher.Constraint("Coincident", 1, 2, 2, 1))
sketch23.addConstraint(Sketcher.Constraint("Coincident", 2, 2, 0, 1))
sketch23.addConstraint(Sketcher.Constraint("Horizontal", 0))
sketch23.addConstraint(Sketcher.Constraint("PointOnObject", 0, 2, -1))
sketch23.addConstraint(Sketcher.Constraint("Perpendicular", 1, 2))
sketch23.addConstraint(Sketcher.Constraint("Equal", 1, 2))
sketch23.addConstraint(Sketcher.Constraint("DistanceX", 0, 2, 0, 1, 1.0))
sketch23.addConstraint(Sketcher.Constraint("DistanceX", -1, 1, 0, 2, 7.0))
pad22 = doc.addObject("PartDesign::Pad", "Pad021")
body19.addObject(pad22)
pad22.Profile = sketch23
pad22.Length = 10
pad22.Reversed = True
body20 = doc.addObject("PartDesign::Body", "Body019")

sketch24 = doc.addObject("Sketcher::SketchObject", "Sketch023")
body20.addObject(sketch24)
sketch24.AttachmentSupport = (doc.getObject("YZ_Plane019"), [""])
sketch24.MapMode = "FlatFace"
sketch24.AttachmentOffset = App.Placement(V(0, 0, 5), App.Rotation())
sketch24.addGeometry(Part.LineSegment(V(9, 0, 0), V(8, 0, 0)), False)
sketch24.addGeometry(Part.LineSegment(V(8, 0, 0), V(8.5, -0.5, 0)), False)
sketch24.addGeometry(Part.LineSegment(V(8.5, -0.5, 0), V(9, 0, 0)), False)
sketch24.addConstraint(Sketcher.Constraint("Coincident", 0, 2, 1, 1))
sketch24.addConstraint(Sketcher.Constraint("Coincident", 1, 2, 2, 1))
sketch24.addConstraint(Sketcher.Constraint("Coincident", 2, 2, 0, 1))
sketch24.addConstraint(Sketcher.Constraint("Horizontal", 0))
sketch24.addConstraint(Sketcher.Constraint("PointOnObject", 0, 2, -1))
sketch24.addConstraint(Sketcher.Constraint("Perpendicular", 1, 2))
sketch24.addConstraint(Sketcher.Constraint("Equal", 1, 2))
sketch24.addConstraint(Sketcher.Constraint("DistanceX", 0, 2, 0, 1, 1.0))
sketch24.addConstraint(Sketcher.Constraint("DistanceX", -1, 1, 0, 2, 8.0))
pad23 = doc.addObject("PartDesign::Pad", "Pad022")
body20.addObject(pad23)
pad23.Profile = sketch24
pad23.Length = 10
pad23.Reversed = True
body21 = doc.addObject("PartDesign::Body", "Body020")

sketch25 = doc.addObject("Sketcher::SketchObject", "Sketch024")
body21.addObject(sketch25)
sketch25.AttachmentSupport = (doc.getObject("YZ_Plane020"), [""])
sketch25.MapMode = "FlatFace"
sketch25.AttachmentOffset = App.Placement(V(0, 0, 5), App.Rotation())
sketch25.addGeometry(Part.LineSegment(V(10, 0, 0), V(9, 0, 0)), False)
sketch25.addGeometry(Part.LineSegment(V(9, 0, 0), V(9.5, -0.5, 0)), False)
sketch25.addGeometry(Part.LineSegment(V(9.5, -0.5, 0), V(10, 0, 0)), False)
sketch25.addConstraint(Sketcher.Constraint("Coincident", 0, 2, 1, 1))
sketch25.addConstraint(Sketcher.Constraint("Coincident", 1, 2, 2, 1))
sketch25.addConstraint(Sketcher.Constraint("Coincident", 2, 2, 0, 1))
sketch25.addConstraint(Sketcher.Constraint("Horizontal", 0))
sketch25.addConstraint(Sketcher.Constraint("PointOnObject", 0, 2, -1))
sketch25.addConstraint(Sketcher.Constraint("Perpendicular", 1, 2))
sketch25.addConstraint(Sketcher.Constraint("Equal", 1, 2))
sketch25.addConstraint(Sketcher.Constraint("DistanceX", 0, 2, 0, 1, 1.0))
sketch25.addConstraint(Sketcher.Constraint("DistanceX", -1, 1, 0, 2, 9.0))
pad24 = doc.addObject("PartDesign::Pad", "Pad023")
body21.addObject(pad24)
pad24.Profile = sketch25
pad24.Length = 10
pad24.Reversed = True
body22 = doc.addObject("PartDesign::Body", "Body021")

sketch26 = doc.addObject("Sketcher::SketchObject", "Sketch025")
body22.addObject(sketch26)
sketch26.AttachmentSupport = (doc.getObject("XY_Plane021"), [""])
sketch26.MapMode = "FlatFace"
sketch26.AttachmentOffset = App.Placement(V(0, 0, 3), App.Rotation())
sketch26.addGeometry(Part.Circle(V(0, 0, 0), V(0, 0, 1), 1.6), False)
sketch26.addConstraint(Sketcher.Constraint("Coincident", 0, 3, -1, 1))
sketch26.addConstraint(Sketcher.Constraint("Diameter", 0, 3.3))
pad25 = doc.addObject("PartDesign::Pad", "Pad024")
body22.addObject(pad25)
pad25.Profile = sketch26
pad25.Length = 12
pad25.Reversed = True
doc.recompute()

body23 = doc.addObject("PartDesign::Body", "Body022")
body23.BaseFeature = body22
boolean = doc.addObject("PartDesign::Boolean", "Boolean")
body.addObject(boolean)
boolean.Type = "Cut"
boolean.addObjects([body23])
doc.recompute()

sketch27 = doc.addObject("Sketcher::SketchObject", "Sketch026")
body.addObject(sketch27)
sketch27.AttachmentSupport = (doc.XY_Plane, [""])
sketch27.MapMode = "FlatFace"
sketch27.AttachmentOffset = App.Placement(V(0, 0, 3), App.Rotation())
sketch27.addGeometry(Part.Circle(V(0, 0, 0), V(0, 0, 1), 3.5), False)
sketch27.addConstraint(Sketcher.Constraint("Coincident", 0, 3, -1, 1))
sketch27.addConstraint(Sketcher.Constraint("Diameter", 0, 7.0))
pocket2 = doc.addObject("PartDesign::Pocket", "Pocket001")
body.addObject(pocket2)
pocket2.Profile = sketch27
pocket2.Length = 2
body3.AllowCompound = True
doc.recompute()

body24 = doc.addObject("PartDesign::Body", "Body023")
body24.BaseFeature = body22
boolean2 = doc.addObject("PartDesign::Boolean", "Boolean001")
body3.addObject(boolean2)
boolean2.Type = "Cut"
boolean2.addObjects([body24])
doc.recompute()
body4.AllowCompound = True
doc.recompute()

body25 = doc.addObject("PartDesign::Body", "Body024")
body25.BaseFeature = body22
boolean3 = doc.addObject("PartDesign::Boolean", "Boolean002")
body4.addObject(boolean3)
boolean3.Type = "Cut"
boolean3.addObjects([body25])
doc.recompute()

body26 = doc.addObject("PartDesign::Body", "Body025")
body26.BaseFeature = body22
boolean4 = doc.addObject("PartDesign::Boolean", "Boolean003")
body5.addObject(boolean4)
boolean4.Type = "Cut"
boolean4.addObjects([body26])
doc.recompute()

boolean5 = doc.addObject("PartDesign::Boolean", "Boolean004")
body13.addObject(boolean5)
boolean5.Type = "Cut"
boolean5.addObjects([body22])

doc.recompute()
